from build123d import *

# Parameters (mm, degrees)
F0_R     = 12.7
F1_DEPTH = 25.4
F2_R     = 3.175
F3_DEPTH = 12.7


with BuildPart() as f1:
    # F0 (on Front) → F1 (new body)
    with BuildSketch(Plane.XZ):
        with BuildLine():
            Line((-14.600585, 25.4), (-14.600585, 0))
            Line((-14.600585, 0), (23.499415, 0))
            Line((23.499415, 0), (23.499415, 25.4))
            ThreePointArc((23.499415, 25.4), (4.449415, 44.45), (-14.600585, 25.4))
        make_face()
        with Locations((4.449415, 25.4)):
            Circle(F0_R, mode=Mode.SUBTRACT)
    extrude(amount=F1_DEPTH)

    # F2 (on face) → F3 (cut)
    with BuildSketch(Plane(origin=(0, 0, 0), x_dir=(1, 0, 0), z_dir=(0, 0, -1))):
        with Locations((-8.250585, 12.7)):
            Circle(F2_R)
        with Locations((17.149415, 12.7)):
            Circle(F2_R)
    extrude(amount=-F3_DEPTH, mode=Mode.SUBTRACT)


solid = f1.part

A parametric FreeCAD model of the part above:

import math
import FreeCAD as App
import Part
import Sketcher
from FreeCAD import Vector
Q = App.Units.Quantity

doc = App.newDocument("Part")
body = doc.addObject("PartDesign::Body", "Body")

# Sketch on XZ plane
sketch1 = doc.addObject("Sketcher::SketchObject", "Sketch")
body.addObject(sketch1)
sketch1.AttachmentSupport = (doc.XZ_Plane, [""])
sketch1.MapMode = "FlatFace"
sketch1.addGeometry([
    Part.LineSegment(Vector(-15, 25, 0), Vector(-15, 0, 0)),  # 0
    Part.LineSegment(Vector(-15, 0, 0), Vector(23, 0, 0)),  # 1
    Part.LineSegment(Vector(23, 0, 0), Vector(23, 25, 0)),  # 2
    Part.ArcOfCircle(Part.Circle(Vector(4, 25, 0), Vector(0, 0, 1), 19), math.radians(0), math.radians(180)),  # 3
    Part.Circle(Vector(4, 25, 0), Vector(0, 0, 1), 13),  # 4
], False)
sketch1.addConstraint([
    Sketcher.Constraint("Coincident", 0, 2, 1, 1),
    Sketcher.Constraint("Coincident", 1, 2, 2, 1),
    Sketcher.Constraint("Tangent", 2, 2, 3, 1),
    Sketcher.Constraint("Tangent", 3, 2, 0, 1),
    Sketcher.Constraint("Vertical", 0),
    Sketcher.Constraint("Horizontal", 1),
    Sketcher.Constraint("Vertical", 2),
    Sketcher.Constraint("Coincident", 4, 3, 3, 3),
    Sketcher.Constraint("PointOnObject", 0, 2, -1),
    Sketcher.Constraint("Diameter", 4, Q("1 in")),
    Sketcher.Constraint("DistanceY", 0, 2, 0, 1, Q("1 in")),
    Sketcher.Constraint("Radius", 3, Q("0.75 in")),
    Sketcher.Constraint("DistanceX", -1, 1, 3, 3, Q("4.449415 mm")),
])
pad1 = doc.addObject("PartDesign::Pad", "Pad")
body.addObject(pad1)
pad1.Profile = sketch1
pad1.Length = Q("1 in")

# Sketch on XY plane
sketch2 = doc.addObject("Sketcher::SketchObject", "Sketch001")
body.addObject(sketch2)
sketch2.AttachmentSupport = (doc.XY_Plane, [""])
sketch2.MapMode = "FlatFace"
sketch2.addGeometry([
    Part.Circle(Vector(-8.3, -12.7, 0), Vector(0, 0, 1), 3.2),
    Part.Circle(Vector(17.1, -12.7, 0), Vector(0, 0, 1), 3.2),
], False)
sketch2.addConstraint([
    Sketcher.Constraint("Equal", 0, 1),
    Sketcher.Constraint("Horizontal", 0, 3, 1, 3),
    Sketcher.Constraint("Diameter", 0, Q("0.25 in")),
    Sketcher.Constraint("DistanceX", 0, 3, 1, 3, Q("1 in")),
    Sketcher.Constraint("DistanceY", 0, 3, -1, 1, Q("0.5 in")),
    Sketcher.Constraint("DistanceX", 0, 3, -1, 1, Q("8.250585 mm")),
])
pocket1 = doc.addObject("PartDesign::Pocket", "Pocket")
body.addObject(pocket1)
pocket1.Profile = sketch2
pocket1.Length = Q("0.5 in")
pocket1.Reversed = True

doc.recompute()
